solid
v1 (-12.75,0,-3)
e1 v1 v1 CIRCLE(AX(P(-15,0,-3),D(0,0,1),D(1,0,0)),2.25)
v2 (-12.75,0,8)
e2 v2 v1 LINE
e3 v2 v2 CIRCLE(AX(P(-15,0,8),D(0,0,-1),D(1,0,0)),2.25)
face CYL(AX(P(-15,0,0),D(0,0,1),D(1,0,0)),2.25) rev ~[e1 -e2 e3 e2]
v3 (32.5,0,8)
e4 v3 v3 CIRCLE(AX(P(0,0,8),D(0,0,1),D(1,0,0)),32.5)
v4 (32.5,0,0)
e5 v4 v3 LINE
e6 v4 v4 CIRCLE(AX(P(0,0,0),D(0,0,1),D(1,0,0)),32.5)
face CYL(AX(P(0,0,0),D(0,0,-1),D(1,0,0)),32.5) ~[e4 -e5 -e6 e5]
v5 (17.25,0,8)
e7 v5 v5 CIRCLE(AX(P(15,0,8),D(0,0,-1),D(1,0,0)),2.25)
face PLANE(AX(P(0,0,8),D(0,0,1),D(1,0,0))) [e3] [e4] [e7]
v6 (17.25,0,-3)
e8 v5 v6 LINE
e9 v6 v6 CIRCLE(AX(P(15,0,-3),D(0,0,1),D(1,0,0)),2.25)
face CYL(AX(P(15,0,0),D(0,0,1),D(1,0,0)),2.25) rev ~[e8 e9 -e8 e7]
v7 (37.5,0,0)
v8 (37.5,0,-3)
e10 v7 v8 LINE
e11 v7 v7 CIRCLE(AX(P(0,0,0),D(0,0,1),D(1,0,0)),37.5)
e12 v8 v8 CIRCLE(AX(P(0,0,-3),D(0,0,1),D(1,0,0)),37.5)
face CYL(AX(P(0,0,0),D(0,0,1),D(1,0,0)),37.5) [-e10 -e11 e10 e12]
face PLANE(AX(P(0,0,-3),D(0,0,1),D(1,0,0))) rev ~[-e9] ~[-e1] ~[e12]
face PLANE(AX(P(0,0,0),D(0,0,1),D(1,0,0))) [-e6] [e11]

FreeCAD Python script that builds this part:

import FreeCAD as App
import Part
import Sketcher
Q = App.Units.Quantity

doc = App.newDocument("Part")
body = doc.addObject("PartDesign::Body", "Body")

sketch1 = body.newObject("Sketcher::SketchObject", "Sketch")
sketch1.AttachmentSupport = (doc.getObject("XY_Plane"), [""])
sketch1.MapMode = "FlatFace"
sketch1.addGeometry(Part.Circle(App.Vector(0, 0, 0), App.Vector(0, 0, 1), 32), False)
sketch1.addConstraint([
    Sketcher.Constraint("Coincident", 0, 3, -1, 1),
    Sketcher.Constraint("Diameter", 0, Q("65 mm")),
])
pad1 = body.newObject("PartDesign::Pad", "Pad")
pad1.Profile = sketch1
pad1.Length = 8

sketch2 = body.newObject("Sketcher::SketchObject", "Sketch001")
sketch2.AttachmentSupport = (doc.getObject("XY_Plane"), [""])
sketch2.MapMode = "FlatFace"
sketch2.addGeometry(Part.Circle(App.Vector(0, 0, 0), App.Vector(0, 0, 1), 38), False)
sketch2.addConstraint([
    Sketcher.Constraint("Coincident", 0, 3, -1, 1),
    Sketcher.Constraint("Diameter", 0, Q("75 mm")),
])
pad2 = body.newObject("PartDesign::Pad", "Pad001")
pad2.Profile = sketch2
pad2.Length = 3
pad2.Reversed = True

sketch3 = body.newObject("Sketcher::SketchObject", "Sketch002")
sketch3.AttachmentSupport = (doc.getObject("XY_Plane"), [""])
sketch3.MapMode = "FlatFace"
sketch3.addGeometry([
    Part.Circle(App.Vector(-15, 0, 0), App.Vector(0, 0, 1), 2.2),
    Part.Circle(App.Vector(15, 0, 0), App.Vector(0, 0, 1), 2.2),
], False)
sketch3.addConstraint([
    Sketcher.Constraint("Equal", 0, 1),
    Sketcher.Constraint("Symmetric", 0, 3, 1, 3, -1, 1),
    Sketcher.Constraint("PointOnObject", 0, 3, -1),
    Sketcher.Constraint("Diameter", 0, Q("4.5 mm")),
    Sketcher.Constraint("DistanceX", 0, 3, -1, 1, Q("15 mm")),
])
pocket1 = body.newObject("PartDesign::Pocket", "Pocket")
pocket1.Profile = sketch3
pocket1.Type = "ThroughAll"
pocket1.Midplane = True

doc.recompute()
